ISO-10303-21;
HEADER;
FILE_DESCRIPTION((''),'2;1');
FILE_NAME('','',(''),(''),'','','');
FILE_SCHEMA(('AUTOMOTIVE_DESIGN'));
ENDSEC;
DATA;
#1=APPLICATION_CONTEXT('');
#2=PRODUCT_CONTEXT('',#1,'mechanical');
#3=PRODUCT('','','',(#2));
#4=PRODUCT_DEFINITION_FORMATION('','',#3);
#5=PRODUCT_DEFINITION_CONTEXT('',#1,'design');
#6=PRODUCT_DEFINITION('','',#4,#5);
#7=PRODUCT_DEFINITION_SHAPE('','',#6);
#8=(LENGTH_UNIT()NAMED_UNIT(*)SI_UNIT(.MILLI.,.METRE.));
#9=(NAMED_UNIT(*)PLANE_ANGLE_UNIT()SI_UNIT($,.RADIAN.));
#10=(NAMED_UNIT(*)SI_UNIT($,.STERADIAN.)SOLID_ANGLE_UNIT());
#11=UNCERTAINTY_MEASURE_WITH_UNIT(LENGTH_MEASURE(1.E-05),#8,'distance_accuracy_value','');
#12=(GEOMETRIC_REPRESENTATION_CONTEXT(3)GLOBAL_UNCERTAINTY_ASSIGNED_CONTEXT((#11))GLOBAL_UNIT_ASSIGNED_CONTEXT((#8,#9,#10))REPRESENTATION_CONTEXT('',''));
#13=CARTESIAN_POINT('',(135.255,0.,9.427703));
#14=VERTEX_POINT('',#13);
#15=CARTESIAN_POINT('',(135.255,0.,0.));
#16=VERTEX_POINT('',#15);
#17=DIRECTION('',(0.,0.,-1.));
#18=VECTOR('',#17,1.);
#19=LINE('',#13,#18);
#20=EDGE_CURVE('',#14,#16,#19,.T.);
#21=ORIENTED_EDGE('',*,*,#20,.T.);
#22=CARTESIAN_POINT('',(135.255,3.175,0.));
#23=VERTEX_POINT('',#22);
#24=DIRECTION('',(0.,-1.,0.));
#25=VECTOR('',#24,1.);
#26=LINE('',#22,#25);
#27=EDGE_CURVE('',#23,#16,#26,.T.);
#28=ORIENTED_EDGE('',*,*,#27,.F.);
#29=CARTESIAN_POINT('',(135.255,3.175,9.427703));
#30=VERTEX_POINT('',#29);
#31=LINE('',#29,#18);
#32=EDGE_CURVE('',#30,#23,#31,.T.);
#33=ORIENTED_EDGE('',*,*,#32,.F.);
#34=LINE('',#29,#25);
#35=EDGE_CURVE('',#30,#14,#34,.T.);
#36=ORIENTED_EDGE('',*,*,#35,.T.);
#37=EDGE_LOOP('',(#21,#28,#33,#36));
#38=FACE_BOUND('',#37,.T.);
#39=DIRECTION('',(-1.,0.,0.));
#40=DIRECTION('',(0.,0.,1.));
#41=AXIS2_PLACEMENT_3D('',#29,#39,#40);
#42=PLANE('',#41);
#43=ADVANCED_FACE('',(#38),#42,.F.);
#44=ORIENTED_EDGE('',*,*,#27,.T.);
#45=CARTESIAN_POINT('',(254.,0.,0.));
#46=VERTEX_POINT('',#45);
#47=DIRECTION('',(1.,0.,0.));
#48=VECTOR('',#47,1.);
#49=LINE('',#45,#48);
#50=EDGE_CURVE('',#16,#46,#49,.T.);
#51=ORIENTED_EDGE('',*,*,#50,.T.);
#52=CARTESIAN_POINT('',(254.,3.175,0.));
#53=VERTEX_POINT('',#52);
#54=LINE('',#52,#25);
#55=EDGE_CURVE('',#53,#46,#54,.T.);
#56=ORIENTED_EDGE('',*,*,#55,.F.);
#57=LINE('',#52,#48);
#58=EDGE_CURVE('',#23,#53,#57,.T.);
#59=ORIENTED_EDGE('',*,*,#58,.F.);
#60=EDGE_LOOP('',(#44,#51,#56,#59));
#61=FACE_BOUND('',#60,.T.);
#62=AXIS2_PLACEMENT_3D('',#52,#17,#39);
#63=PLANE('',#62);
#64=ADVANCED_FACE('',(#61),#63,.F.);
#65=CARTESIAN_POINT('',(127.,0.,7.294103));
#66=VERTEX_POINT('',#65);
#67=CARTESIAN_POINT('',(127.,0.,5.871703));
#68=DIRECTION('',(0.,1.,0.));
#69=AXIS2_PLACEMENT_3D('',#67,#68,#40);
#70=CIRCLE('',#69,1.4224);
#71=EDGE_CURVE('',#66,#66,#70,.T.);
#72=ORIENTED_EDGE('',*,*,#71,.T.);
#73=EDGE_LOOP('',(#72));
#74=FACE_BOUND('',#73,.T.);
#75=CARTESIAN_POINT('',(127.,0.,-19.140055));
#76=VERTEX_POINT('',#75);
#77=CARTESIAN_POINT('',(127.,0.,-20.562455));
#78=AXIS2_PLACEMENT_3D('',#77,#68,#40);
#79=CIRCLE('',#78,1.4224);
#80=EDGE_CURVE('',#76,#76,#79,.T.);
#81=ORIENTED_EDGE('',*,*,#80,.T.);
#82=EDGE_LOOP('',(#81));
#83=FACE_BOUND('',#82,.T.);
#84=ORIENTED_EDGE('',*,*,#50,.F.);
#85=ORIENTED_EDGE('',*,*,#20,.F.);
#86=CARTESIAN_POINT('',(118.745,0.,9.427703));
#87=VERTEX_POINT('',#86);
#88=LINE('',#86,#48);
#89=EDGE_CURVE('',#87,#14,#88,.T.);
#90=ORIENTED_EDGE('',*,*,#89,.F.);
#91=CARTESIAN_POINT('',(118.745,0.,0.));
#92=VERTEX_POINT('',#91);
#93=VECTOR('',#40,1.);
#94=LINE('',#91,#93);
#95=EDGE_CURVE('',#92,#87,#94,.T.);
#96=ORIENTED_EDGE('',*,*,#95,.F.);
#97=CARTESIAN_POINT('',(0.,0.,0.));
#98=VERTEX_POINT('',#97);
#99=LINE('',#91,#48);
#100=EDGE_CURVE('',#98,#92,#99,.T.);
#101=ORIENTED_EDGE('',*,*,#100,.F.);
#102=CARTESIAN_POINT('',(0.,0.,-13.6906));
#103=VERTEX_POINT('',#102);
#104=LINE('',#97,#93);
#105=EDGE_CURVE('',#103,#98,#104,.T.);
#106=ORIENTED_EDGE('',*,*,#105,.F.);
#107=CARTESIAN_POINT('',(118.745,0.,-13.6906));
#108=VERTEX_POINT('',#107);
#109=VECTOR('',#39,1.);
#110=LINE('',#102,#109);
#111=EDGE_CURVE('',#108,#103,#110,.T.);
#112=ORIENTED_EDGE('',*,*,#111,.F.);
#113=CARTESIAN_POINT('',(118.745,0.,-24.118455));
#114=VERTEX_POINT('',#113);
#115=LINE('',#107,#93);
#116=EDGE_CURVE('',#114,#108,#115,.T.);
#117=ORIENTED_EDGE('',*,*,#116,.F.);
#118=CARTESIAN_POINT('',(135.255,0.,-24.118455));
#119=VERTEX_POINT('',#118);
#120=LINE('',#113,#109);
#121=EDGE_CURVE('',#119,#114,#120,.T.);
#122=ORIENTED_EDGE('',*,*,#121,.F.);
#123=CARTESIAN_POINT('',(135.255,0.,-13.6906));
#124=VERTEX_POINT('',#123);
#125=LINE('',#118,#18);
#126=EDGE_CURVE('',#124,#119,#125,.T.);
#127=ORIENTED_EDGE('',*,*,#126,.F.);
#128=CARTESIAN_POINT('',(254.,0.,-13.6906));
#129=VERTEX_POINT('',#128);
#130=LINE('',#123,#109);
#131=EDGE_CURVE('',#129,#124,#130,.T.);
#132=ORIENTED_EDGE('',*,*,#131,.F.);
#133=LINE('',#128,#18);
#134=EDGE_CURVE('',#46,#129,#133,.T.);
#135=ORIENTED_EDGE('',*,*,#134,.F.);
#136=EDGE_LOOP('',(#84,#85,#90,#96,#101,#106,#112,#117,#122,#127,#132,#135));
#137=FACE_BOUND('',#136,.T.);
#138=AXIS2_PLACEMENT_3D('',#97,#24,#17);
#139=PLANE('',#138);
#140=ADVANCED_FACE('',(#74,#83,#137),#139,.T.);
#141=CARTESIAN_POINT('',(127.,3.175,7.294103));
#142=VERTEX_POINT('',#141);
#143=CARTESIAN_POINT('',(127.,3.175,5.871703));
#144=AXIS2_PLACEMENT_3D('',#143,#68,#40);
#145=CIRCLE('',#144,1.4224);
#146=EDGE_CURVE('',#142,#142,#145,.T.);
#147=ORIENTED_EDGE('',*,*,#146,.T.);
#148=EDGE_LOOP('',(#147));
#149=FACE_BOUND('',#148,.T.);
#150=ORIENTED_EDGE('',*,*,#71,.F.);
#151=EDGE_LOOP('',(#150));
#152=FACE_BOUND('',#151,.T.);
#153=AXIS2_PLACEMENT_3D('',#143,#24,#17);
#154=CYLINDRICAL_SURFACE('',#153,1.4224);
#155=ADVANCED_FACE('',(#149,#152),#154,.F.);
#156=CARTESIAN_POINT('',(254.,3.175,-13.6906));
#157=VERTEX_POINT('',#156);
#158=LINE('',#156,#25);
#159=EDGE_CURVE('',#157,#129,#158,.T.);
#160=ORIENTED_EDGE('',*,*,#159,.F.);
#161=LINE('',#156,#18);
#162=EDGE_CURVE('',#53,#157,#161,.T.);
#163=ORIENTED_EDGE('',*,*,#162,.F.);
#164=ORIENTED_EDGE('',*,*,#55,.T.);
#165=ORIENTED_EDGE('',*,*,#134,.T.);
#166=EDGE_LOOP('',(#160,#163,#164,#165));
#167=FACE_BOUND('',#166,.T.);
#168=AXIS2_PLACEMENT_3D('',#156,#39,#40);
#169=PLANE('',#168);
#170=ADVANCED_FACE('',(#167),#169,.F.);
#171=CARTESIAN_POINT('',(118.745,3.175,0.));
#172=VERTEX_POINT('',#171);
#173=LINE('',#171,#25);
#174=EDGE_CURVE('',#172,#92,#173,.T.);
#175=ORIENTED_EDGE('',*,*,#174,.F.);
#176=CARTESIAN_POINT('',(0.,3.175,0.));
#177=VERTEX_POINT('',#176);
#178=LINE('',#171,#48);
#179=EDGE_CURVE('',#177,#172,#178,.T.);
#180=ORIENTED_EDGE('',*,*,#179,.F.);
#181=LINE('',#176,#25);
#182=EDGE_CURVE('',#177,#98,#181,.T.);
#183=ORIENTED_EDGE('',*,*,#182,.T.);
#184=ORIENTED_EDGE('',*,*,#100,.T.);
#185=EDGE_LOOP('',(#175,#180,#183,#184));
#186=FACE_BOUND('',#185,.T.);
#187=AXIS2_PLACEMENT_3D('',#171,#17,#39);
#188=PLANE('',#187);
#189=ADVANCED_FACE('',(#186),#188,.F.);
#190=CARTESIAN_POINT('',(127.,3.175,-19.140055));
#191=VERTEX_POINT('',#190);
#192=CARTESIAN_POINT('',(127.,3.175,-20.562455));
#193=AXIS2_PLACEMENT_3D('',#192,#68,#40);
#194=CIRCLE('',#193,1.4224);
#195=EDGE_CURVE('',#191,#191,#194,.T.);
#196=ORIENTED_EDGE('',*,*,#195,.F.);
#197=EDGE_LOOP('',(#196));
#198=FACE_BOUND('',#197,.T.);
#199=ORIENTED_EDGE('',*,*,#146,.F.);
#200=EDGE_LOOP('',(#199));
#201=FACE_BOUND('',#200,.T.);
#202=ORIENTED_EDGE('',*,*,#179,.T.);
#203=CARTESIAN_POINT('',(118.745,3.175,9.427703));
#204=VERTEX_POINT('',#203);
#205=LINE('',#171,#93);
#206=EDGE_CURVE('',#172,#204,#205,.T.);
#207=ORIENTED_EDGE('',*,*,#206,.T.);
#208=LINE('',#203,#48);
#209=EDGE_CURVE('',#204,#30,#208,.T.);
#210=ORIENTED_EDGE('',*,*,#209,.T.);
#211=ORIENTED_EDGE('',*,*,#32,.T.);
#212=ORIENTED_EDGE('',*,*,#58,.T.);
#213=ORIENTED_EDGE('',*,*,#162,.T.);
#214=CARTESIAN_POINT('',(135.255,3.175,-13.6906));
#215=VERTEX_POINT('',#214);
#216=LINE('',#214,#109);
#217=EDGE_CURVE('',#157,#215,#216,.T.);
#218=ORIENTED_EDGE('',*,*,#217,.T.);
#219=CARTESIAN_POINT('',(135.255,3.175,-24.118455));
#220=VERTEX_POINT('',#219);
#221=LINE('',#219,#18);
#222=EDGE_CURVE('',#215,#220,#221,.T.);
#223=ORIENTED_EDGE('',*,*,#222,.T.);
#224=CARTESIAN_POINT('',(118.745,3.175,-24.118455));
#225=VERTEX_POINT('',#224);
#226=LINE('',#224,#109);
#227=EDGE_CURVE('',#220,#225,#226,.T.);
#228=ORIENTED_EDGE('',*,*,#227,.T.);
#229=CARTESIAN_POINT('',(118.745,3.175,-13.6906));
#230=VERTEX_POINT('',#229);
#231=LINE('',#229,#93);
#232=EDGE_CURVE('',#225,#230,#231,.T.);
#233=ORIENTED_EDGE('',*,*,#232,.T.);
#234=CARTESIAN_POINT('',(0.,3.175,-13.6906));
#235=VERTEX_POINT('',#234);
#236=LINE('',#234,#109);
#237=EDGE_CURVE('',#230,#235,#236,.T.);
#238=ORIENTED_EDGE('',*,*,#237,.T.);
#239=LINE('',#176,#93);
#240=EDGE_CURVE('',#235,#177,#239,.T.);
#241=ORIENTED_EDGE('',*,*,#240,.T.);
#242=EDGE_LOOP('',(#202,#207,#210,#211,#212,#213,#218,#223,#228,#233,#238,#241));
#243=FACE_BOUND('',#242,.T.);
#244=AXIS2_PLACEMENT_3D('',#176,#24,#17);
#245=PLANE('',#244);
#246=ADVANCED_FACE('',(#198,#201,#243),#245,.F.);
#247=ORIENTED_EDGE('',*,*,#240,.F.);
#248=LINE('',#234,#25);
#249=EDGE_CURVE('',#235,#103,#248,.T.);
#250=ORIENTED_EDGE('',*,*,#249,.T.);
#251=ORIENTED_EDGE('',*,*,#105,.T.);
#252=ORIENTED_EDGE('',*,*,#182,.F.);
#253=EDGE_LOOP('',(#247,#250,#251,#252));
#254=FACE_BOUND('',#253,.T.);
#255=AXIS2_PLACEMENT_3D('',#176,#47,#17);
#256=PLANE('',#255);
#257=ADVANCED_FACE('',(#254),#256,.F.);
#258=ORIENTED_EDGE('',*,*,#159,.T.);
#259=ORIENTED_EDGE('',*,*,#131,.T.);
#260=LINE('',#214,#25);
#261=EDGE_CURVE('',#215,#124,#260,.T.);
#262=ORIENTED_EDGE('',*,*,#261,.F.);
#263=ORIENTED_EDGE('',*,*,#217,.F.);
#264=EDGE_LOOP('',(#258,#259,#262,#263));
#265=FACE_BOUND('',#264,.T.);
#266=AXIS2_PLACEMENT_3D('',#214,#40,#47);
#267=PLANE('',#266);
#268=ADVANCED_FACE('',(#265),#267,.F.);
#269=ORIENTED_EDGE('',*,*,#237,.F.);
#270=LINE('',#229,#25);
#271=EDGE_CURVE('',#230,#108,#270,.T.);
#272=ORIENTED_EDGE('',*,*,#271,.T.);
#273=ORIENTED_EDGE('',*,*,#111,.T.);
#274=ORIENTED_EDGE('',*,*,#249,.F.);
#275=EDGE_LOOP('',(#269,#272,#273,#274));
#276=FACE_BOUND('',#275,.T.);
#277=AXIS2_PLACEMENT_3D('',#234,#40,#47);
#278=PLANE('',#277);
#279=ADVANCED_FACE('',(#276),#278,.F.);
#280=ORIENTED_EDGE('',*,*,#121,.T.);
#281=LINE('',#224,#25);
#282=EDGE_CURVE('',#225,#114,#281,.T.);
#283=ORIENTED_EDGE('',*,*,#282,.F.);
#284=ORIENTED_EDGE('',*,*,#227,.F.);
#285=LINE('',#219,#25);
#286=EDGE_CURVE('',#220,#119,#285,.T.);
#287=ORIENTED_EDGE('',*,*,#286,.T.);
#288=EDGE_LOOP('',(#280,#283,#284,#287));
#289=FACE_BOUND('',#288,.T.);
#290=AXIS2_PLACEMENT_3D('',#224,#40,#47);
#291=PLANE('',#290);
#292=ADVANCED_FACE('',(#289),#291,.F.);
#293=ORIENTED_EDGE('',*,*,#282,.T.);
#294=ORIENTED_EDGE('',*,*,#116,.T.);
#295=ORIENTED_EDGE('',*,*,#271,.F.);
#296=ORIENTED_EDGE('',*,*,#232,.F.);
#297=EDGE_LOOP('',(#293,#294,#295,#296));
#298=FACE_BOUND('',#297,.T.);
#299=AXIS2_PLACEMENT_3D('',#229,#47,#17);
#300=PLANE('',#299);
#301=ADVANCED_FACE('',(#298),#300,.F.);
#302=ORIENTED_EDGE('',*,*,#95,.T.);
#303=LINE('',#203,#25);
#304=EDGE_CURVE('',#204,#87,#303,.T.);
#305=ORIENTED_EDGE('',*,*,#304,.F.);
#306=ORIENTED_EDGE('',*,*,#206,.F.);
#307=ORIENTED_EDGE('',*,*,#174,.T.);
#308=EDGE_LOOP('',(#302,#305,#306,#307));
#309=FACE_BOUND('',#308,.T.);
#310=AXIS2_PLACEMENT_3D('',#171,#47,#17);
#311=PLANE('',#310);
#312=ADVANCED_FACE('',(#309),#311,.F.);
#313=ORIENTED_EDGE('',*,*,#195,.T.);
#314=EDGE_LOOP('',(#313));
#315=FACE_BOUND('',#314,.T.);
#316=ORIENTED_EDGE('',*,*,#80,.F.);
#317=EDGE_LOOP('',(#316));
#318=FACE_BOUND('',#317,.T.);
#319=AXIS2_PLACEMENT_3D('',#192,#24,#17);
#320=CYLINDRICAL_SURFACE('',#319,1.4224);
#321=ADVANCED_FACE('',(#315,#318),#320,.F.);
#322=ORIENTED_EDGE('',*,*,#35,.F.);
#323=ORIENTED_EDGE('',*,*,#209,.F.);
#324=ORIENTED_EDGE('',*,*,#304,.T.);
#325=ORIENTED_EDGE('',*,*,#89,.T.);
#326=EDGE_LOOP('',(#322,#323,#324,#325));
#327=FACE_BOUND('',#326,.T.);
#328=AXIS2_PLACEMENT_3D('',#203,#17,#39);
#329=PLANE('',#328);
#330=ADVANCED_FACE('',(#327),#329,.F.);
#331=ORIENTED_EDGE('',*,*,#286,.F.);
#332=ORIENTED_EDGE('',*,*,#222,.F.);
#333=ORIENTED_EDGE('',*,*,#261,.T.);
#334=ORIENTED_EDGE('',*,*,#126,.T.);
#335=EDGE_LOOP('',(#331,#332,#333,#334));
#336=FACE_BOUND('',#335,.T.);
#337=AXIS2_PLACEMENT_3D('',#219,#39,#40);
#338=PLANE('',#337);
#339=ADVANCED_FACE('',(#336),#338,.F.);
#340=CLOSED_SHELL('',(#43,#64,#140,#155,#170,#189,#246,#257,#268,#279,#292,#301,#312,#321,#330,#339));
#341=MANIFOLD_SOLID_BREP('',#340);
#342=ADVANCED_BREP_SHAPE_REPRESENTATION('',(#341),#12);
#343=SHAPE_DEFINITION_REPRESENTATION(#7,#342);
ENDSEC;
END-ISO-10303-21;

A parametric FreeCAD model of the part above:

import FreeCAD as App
import Part
import Sketcher
from FreeCAD import Vector
Q = App.Units.Quantity

doc = App.newDocument("Part")
params = doc.addObject("Spreadsheet::Sheet", "Params")
for row, (alias, value) in enumerate([
    ("sketch1_diameter", "0.112 in"),
    ("sketch1_width", "0.65 in"),
    ("sketch1_height", "0.539 in"),
    ("pad1_length", "0.125 in"),
], start=1):
    params.set(f"A{row}", alias)
    params.set(f"B{row}", "=" + value)
    params.setAlias(f"B{row}", alias)

body = doc.addObject("PartDesign::Body", "Body")

sketch1 = body.newObject("Sketcher::SketchObject", "Sketch")
sketch1.AttachmentSupport = (doc.getObject("XZ_Plane"), [""])
sketch1.MapMode = "FlatFace"
sketch1.addGeometry([
    Part.LineSegment(Vector(0, -13.6906, 0), Vector(0, 0, 0)),
    Part.LineSegment(Vector(0, 0, 0), Vector(118.745, 0, 0)),
    Part.LineSegment(Vector(118.745, 0, 0), Vector(118.745, 9.427703, 0)),
    Part.LineSegment(Vector(118.745, 9.427703, 0), Vector(135.255, 9.427703, 0)),
    Part.LineSegment(Vector(135.255, 9.427703, 0), Vector(135.255, 0, 0)),
    Part.LineSegment(Vector(135.255, 0, 0), Vector(254, 0, 0)),
    Part.LineSegment(Vector(254, 0, 0), Vector(254, -13.6906, 0)),
    Part.LineSegment(Vector(254, -13.6906, 0), Vector(135.255, -13.6906, 0)),
    Part.LineSegment(Vector(135.255, -13.6906, 0), Vector(135.255, -24.118455, 0)),
    Part.LineSegment(Vector(135.255, -24.118455, 0), Vector(118.745, -24.118455, 0)),
    Part.LineSegment(Vector(118.745, -24.118455, 0), Vector(118.745, -13.6906, 0)),
    Part.LineSegment(Vector(118.745, -13.6906, 0), Vector(0, -13.6906, 0)),
    Part.Circle(Vector(127, 5.871703, 0), Vector(0, 0, 1), 1.4224),
    Part.Circle(Vector(127, -20.562455, 0), Vector(0, 0, 1), 1.4224),
], False)
sketch1.addConstraint([
    Sketcher.Constraint("Coincident", 0, 2, 1, 1),
    Sketcher.Constraint("Coincident", 1, 2, 2, 1),
    Sketcher.Constraint("Coincident", 2, 2, 3, 1),
    Sketcher.Constraint("Coincident", 3, 2, 4, 1),
    Sketcher.Constraint("Coincident", 4, 2, 5, 1),
    Sketcher.Constraint("Coincident", 5, 2, 6, 1),
    Sketcher.Constraint("Coincident", 6, 2, 7, 1),
    Sketcher.Constraint("Coincident", 7, 2, 8, 1),
    Sketcher.Constraint("Coincident", 8, 2, 9, 1),
    Sketcher.Constraint("Coincident", 9, 2, 10, 1),
    Sketcher.Constraint("Coincident", 10, 2, 11, 1),
    Sketcher.Constraint("Coincident", 11, 2, 0, 1),
    Sketcher.Constraint("Vertical", 0),
    Sketcher.Constraint("Horizontal", 1),
    Sketcher.Constraint("Vertical", 2),
    Sketcher.Constraint("Horizontal", 3),
    Sketcher.Constraint("Vertical", 4),
    Sketcher.Constraint("Horizontal", 5),
    Sketcher.Constraint("Vertical", 6),
    Sketcher.Constraint("Horizontal", 7),
    Sketcher.Constraint("Vertical", 8),
    Sketcher.Constraint("Horizontal", 9),
    Sketcher.Constraint("Vertical", 10),
    Sketcher.Constraint("Horizontal", 11),
    Sketcher.Constraint("Coincident", 0, 2, -1, 1),
    Sketcher.Constraint("Equal", 12, 13),
    Sketcher.Constraint("PointOnObject", 4, 2, -1),
    Sketcher.Constraint("Horizontal", 7, 2, 10, 2),
    Sketcher.Constraint("Vertical", 12, 3, 13, 3),
    Sketcher.Constraint("Vertical", 4, 2, 7, 2),
    Sketcher.Constraint("Vertical", 2, 2, 9, 2),
    Sketcher.Constraint("Equal", 1, 5),
    Sketcher.Constraint("Diameter", 12, Q("0.112 in")),
    Sketcher.Constraint("DistanceX", -1, 1, 12, 3, Q("5 in")),
    Sketcher.Constraint("DistanceX", -1, 1, 5, 2, Q("10 in")),
    Sketcher.Constraint("DistanceX", 3, 1, 3, 2, Q("0.65 in")),
    Sketcher.Constraint("DistanceY", 0, 1, 0, 2, Q("0.539 in")),
    Sketcher.Constraint("DistanceY", 12, 3, 2, 2, Q("0.14 in")),
    Sketcher.Constraint("DistanceY", 8, 2, 13, 3, Q("0.14 in")),
    Sketcher.Constraint("DistanceY", 2, 1, 2, 2, 9.427703),
    Sketcher.Constraint("DistanceY", 8, 2, 8, 1, 10.427855),
])
sketch1.setExpression("Constraints[32]", "Params.sketch1_diameter")
sketch1.setExpression("Constraints[35]", "Params.sketch1_width")
sketch1.setExpression("Constraints[36]", "Params.sketch1_height")
pad1 = body.newObject("PartDesign::Pad", "Pad")
pad1.Profile = sketch1
pad1.setExpression("Length", "Params.pad1_length")
pad1.Reversed = True

doc.recompute()
